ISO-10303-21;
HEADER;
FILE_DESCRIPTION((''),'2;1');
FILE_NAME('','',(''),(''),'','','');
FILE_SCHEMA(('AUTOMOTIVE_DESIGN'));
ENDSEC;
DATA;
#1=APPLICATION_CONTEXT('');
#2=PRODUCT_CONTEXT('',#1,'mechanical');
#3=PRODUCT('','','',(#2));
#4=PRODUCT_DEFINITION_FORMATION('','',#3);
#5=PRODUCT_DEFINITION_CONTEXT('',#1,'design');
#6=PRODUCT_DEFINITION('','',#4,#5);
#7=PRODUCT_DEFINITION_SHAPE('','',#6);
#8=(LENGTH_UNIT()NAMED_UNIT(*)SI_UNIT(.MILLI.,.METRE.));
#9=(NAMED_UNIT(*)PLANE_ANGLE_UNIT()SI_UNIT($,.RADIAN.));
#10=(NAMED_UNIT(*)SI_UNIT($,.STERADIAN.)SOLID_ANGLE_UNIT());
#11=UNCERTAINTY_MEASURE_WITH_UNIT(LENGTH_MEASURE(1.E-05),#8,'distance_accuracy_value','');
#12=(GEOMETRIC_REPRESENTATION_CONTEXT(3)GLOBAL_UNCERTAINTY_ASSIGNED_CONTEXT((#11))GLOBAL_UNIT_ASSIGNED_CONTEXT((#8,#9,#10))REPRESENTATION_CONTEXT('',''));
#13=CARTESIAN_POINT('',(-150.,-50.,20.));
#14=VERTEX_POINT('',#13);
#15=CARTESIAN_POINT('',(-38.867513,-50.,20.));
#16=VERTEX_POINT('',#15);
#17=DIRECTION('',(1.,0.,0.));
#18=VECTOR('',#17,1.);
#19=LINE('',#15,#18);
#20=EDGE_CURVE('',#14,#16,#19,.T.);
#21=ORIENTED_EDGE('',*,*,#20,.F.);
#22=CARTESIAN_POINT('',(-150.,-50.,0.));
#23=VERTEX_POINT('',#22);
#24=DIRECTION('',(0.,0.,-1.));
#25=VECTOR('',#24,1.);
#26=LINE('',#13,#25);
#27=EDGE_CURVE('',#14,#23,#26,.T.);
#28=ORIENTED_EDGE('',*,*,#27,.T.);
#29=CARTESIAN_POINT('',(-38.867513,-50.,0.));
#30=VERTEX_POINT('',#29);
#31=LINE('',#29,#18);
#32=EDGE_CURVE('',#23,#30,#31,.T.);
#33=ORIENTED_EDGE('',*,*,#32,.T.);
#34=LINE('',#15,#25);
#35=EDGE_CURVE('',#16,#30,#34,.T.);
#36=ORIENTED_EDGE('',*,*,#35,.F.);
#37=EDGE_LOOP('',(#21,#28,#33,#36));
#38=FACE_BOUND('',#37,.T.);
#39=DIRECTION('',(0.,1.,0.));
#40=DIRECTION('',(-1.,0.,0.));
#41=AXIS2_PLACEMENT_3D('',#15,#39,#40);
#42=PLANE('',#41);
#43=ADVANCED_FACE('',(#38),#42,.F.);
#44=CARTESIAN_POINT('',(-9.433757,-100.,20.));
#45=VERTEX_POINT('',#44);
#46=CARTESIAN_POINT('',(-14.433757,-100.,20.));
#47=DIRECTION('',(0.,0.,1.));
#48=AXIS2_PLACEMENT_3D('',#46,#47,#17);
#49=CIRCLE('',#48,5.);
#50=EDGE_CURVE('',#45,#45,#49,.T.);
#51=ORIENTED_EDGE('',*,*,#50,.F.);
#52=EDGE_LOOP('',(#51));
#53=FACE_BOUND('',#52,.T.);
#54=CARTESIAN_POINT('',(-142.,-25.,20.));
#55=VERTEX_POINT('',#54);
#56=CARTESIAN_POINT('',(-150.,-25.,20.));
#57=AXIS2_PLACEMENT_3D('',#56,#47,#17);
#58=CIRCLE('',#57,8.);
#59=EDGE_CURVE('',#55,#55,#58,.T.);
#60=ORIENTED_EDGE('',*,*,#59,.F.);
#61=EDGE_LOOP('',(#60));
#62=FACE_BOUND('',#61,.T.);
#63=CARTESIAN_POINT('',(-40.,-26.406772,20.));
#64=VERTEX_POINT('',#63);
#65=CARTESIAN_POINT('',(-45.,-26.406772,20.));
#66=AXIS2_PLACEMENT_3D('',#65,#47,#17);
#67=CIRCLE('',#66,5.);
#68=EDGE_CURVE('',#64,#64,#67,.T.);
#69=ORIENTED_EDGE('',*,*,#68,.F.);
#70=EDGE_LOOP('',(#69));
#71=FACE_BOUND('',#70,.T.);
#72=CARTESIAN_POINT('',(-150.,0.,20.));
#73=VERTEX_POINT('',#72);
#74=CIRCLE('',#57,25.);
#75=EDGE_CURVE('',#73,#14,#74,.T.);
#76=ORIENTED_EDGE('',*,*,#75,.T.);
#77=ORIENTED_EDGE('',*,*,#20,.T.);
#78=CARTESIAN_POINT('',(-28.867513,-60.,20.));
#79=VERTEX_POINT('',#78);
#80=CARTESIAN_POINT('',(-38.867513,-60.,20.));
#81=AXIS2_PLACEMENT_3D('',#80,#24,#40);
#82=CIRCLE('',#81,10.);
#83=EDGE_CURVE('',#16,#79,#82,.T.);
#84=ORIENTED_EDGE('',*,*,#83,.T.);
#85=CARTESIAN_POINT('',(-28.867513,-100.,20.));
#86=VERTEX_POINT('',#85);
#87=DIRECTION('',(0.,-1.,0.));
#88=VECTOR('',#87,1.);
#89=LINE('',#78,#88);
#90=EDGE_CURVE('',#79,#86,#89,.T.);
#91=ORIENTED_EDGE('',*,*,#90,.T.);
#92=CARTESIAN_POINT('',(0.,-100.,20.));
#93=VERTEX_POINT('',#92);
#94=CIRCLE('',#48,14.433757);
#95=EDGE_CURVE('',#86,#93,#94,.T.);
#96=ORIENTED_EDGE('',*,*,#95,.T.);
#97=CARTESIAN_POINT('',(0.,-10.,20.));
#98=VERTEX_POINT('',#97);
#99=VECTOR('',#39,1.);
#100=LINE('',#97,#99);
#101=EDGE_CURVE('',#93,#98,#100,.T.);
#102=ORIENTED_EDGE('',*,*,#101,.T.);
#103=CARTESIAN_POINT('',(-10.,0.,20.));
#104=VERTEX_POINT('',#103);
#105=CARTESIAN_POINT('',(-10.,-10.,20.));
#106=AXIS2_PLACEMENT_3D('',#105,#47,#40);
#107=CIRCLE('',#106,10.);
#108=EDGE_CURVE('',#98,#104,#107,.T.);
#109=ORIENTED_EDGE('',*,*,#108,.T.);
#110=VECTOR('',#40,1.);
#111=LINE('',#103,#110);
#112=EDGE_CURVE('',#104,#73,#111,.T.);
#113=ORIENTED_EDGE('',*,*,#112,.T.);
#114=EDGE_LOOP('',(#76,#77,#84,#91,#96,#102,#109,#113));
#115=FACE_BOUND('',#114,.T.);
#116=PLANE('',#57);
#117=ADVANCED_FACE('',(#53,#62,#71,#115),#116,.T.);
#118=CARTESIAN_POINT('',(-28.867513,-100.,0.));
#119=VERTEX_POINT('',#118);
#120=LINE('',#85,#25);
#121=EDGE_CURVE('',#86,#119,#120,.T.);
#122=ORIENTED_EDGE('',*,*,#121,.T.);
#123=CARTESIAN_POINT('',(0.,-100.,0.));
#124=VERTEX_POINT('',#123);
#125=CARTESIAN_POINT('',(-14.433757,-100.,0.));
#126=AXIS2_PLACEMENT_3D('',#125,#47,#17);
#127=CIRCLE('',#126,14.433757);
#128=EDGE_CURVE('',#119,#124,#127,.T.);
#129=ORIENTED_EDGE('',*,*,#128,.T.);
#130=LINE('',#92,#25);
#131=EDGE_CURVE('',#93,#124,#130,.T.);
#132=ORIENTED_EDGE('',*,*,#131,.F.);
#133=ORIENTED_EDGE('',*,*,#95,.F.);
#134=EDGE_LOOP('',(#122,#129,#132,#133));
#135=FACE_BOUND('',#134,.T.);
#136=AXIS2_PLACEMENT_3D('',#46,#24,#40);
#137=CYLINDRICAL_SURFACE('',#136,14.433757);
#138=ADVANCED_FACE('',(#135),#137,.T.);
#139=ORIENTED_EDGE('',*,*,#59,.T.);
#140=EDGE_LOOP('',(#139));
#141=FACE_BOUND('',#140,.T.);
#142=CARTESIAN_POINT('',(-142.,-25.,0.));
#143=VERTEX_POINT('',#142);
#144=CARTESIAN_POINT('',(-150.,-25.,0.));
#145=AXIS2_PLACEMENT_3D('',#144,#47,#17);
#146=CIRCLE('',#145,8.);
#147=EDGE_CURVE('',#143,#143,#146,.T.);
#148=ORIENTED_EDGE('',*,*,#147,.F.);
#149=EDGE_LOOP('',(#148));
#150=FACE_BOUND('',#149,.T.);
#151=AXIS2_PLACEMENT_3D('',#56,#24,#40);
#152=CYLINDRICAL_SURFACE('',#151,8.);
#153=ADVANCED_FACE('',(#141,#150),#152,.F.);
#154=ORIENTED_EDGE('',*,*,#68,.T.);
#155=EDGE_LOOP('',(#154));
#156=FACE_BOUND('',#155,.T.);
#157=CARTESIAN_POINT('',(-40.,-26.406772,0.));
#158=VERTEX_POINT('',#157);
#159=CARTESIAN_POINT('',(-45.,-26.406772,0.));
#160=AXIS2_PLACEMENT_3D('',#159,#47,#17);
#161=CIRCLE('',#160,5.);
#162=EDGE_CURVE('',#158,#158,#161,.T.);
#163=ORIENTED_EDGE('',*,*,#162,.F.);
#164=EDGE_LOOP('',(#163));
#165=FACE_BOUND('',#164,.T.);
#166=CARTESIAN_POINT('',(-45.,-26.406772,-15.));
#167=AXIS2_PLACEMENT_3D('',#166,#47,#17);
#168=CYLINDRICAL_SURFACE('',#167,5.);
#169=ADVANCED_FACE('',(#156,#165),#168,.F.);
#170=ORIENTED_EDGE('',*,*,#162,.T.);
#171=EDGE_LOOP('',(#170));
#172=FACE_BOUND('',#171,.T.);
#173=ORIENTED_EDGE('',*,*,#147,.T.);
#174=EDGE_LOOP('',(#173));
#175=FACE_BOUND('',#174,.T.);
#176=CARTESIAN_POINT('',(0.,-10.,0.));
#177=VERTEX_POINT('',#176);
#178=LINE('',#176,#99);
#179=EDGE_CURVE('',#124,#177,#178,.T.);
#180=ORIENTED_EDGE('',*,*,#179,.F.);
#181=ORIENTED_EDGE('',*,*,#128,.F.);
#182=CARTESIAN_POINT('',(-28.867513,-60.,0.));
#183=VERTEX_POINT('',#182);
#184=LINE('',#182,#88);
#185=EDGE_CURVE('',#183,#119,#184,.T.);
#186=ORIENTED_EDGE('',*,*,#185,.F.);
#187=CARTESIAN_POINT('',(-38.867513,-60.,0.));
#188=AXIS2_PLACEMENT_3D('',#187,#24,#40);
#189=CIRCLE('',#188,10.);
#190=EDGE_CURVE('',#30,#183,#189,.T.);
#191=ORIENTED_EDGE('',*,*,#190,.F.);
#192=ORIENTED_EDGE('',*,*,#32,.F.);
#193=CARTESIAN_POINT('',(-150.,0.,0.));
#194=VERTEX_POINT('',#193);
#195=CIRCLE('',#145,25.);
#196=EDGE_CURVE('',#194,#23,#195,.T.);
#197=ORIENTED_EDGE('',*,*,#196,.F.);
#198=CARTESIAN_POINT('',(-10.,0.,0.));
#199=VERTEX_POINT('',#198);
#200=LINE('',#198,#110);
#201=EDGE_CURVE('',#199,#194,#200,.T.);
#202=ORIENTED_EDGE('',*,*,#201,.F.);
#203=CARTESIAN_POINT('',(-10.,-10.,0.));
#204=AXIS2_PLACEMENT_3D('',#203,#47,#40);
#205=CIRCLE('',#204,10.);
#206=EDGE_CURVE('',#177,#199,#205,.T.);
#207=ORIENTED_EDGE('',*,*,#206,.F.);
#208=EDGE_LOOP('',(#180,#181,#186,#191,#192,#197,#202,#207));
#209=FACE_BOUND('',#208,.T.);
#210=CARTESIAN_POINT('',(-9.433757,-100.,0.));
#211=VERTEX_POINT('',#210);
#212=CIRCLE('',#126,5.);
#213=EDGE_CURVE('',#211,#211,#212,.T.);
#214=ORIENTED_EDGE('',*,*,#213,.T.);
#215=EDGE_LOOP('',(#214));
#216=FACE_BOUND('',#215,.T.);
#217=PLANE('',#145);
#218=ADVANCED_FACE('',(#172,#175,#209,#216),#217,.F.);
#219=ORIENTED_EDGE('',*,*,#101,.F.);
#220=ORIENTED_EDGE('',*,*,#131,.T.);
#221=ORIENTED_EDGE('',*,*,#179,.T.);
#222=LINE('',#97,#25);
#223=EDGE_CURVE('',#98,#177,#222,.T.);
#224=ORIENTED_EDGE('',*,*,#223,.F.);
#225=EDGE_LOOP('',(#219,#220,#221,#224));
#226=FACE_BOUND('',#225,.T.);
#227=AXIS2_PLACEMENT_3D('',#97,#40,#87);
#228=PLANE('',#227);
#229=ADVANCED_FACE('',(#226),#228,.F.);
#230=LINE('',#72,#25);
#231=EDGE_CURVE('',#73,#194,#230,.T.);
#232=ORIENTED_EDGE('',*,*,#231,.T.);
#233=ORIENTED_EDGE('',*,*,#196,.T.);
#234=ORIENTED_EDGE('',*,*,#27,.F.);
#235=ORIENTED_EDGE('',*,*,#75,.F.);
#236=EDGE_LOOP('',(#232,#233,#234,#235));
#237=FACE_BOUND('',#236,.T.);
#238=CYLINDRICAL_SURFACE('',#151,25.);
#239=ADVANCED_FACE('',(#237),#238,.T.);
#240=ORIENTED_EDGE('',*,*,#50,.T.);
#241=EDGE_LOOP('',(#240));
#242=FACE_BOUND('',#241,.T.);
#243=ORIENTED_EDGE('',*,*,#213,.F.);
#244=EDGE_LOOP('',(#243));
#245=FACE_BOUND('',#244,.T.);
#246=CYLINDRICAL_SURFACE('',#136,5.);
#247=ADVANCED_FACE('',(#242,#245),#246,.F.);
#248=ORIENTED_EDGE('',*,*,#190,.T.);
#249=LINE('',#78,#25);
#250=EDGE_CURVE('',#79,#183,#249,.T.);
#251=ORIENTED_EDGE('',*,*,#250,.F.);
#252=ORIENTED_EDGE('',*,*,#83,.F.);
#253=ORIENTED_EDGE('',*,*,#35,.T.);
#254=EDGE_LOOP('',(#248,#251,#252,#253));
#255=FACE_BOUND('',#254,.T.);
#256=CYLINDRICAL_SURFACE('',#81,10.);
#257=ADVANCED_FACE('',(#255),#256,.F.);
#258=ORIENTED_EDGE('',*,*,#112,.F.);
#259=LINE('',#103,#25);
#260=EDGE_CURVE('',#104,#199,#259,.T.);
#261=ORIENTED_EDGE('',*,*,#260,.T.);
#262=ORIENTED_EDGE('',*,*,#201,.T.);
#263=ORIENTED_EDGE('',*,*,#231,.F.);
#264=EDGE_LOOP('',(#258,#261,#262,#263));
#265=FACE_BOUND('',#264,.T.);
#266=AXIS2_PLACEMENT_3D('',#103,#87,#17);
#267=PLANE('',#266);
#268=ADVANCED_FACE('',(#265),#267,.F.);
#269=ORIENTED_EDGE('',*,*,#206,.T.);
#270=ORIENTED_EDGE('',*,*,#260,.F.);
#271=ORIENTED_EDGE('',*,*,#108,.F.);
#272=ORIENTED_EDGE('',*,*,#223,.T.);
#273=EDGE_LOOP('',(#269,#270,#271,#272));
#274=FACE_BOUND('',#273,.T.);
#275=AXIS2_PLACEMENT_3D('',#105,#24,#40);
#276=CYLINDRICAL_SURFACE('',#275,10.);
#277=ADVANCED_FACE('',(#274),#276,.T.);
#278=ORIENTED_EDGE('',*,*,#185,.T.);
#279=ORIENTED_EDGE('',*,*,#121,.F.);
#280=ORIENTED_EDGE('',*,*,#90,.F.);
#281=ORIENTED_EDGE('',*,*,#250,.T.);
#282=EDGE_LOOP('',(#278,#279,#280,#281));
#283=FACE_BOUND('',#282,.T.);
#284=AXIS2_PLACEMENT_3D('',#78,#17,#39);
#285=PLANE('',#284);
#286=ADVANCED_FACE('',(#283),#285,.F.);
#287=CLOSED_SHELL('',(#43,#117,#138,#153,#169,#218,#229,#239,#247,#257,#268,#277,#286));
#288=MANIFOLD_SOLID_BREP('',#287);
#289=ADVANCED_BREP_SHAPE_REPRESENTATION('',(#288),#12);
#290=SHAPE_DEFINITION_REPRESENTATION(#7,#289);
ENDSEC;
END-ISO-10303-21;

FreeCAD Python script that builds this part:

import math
import FreeCAD as App
import Part
import Sketcher

doc = App.newDocument("Part")
body = doc.addObject("PartDesign::Body", "Body")

# Sketch on XY plane
sketch1 = body.newObject("Sketcher::SketchObject", "Sketch")
sketch1.AttachmentSupport = (doc.getObject("XY_Plane"), [""])
sketch1.MapMode = "FlatFace"
sketch1.addGeometry(Part.LineSegment(App.Vector(-10, 0, 0), App.Vector(-150, 0, 0)), False)
sketch1.addGeometry(Part.ArcOfCircle(Part.Circle(App.Vector(-150, -25, 0), App.Vector(0, 0, 1), 25), math.radians(90), math.radians(270)), False)
sketch1.addGeometry(Part.LineSegment(App.Vector(-150, -50, 0), App.Vector(-39, -50, 0)), False)
sketch1.addGeometry(Part.ArcOfCircle(Part.Circle(App.Vector(-39, -60, 0), App.Vector(0, 0, 1), 10), math.radians(0), math.radians(90)), False)
sketch1.addGeometry(Part.LineSegment(App.Vector(-29, -60, 0), App.Vector(-29, -100, 0)), False)
sketch1.addGeometry(Part.ArcOfCircle(Part.Circle(App.Vector(-14, -100, 0), App.Vector(0, 0, 1), 14), math.radians(180), math.radians(360)), False)
sketch1.addGeometry(Part.LineSegment(App.Vector(0, -100, 0), App.Vector(0, -10, 0)), False)
sketch1.addGeometry(Part.ArcOfCircle(Part.Circle(App.Vector(-10, -10, 0), App.Vector(0, 0, 1), 10), math.radians(0), math.radians(90)), False)
sketch1.addGeometry(Part.Circle(App.Vector(-14, -100, 0), App.Vector(0, 0, 1), 5), False)
sketch1.addGeometry(Part.Circle(App.Vector(-150, -25, 0), App.Vector(0, 0, 1), 8), False)
sketch1.addConstraint(Sketcher.Constraint("Tangent", 0, 2, 1, 1))
sketch1.addConstraint(Sketcher.Constraint("Tangent", 1, 2, 2, 1))
sketch1.addConstraint(Sketcher.Constraint("Tangent", 2, 2, 3, 2))
sketch1.addConstraint(Sketcher.Constraint("Tangent", 3, 1, 4, 1))
sketch1.addConstraint(Sketcher.Constraint("Tangent", 4, 2, 5, 1))
sketch1.addConstraint(Sketcher.Constraint("Tangent", 5, 2, 6, 1))
sketch1.addConstraint(Sketcher.Constraint("Tangent", 6, 2, 7, 1))
sketch1.addConstraint(Sketcher.Constraint("Tangent", 7, 2, 0, 1))
sketch1.addConstraint(Sketcher.Constraint("Horizontal", 0))
sketch1.addConstraint(Sketcher.Constraint("Horizontal", 2))
sketch1.addConstraint(Sketcher.Constraint("Vertical", 4))
sketch1.addConstraint(Sketcher.Constraint("Vertical", 6))
sketch1.addConstraint(Sketcher.Constraint("Coincident", 8, 3, 5, 3))
sketch1.addConstraint(Sketcher.Constraint("Coincident", 9, 3, 1, 3))
sketch1.addConstraint(Sketcher.Constraint("Equal", 3, 7))
sketch1.addConstraint(Sketcher.Constraint("PointOnObject", 0, 2, -1))
sketch1.addConstraint(Sketcher.Constraint("PointOnObject", 5, 2, -2))
sketch1.addConstraint(Sketcher.Constraint("Diameter", 8, 10.0))
sketch1.addConstraint(Sketcher.Constraint("Diameter", 9, 16.0))
sketch1.addConstraint(Sketcher.Constraint("Radius", 1, 25.0))
sketch1.addConstraint(Sketcher.Constraint("Radius", 3, 10.0))
sketch1.addConstraint(Sketcher.Constraint("DistanceX", 0, 2, 0, 1, 140.0))
sketch1.addConstraint(Sketcher.Constraint("DistanceY", 4, 2, 4, 1, 40.0))
sketch1.addConstraint(Sketcher.Constraint("Radius", 5, 14.433757))
pad1 = body.newObject("PartDesign::Pad", "Pad")
pad1.Profile = sketch1
pad1.Length = 20

# Sketch on XY plane
sketch2 = body.newObject("Sketcher::SketchObject", "Sketch001")
sketch2.AttachmentSupport = (doc.getObject("XY_Plane"), [""])
sketch2.MapMode = "FlatFace"
sketch2.AttachmentOffset = App.Placement(App.Vector(0, 0, 20), App.Rotation())
sketch2.addGeometry(Part.Circle(App.Vector(-45, -26, 0), App.Vector(0, 0, 1), 5), False)
sketch2.addConstraint(Sketcher.Constraint("Diameter", 0, 10.0))
sketch2.addConstraint(Sketcher.Constraint("DistanceX", 0, 3, -1, 1, 45.0))
sketch2.addConstraint(Sketcher.Constraint("DistanceY", 0, 3, -1, 1, 26.406772))
pocket1 = body.newObject("PartDesign::Pocket", "Pocket")
pocket1.Profile = sketch2
pocket1.Length = 35

doc.recompute()
